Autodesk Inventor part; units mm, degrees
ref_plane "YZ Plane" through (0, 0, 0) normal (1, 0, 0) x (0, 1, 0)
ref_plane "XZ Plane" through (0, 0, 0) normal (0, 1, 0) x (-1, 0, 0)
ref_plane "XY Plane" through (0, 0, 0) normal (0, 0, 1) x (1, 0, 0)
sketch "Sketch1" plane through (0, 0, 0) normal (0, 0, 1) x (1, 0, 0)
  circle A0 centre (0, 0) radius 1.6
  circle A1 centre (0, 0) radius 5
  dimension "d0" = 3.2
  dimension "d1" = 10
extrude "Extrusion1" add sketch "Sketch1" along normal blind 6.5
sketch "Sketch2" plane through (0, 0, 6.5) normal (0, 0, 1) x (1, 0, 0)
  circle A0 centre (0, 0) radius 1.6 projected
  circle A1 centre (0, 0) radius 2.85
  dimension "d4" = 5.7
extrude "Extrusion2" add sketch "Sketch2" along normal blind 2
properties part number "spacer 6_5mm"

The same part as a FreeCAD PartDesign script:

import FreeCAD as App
import Part
import Sketcher

doc = App.newDocument("Part")
body = doc.addObject("PartDesign::Body", "Body")

# Sketch on XY plane
sketch1 = body.newObject("Sketcher::SketchObject", "Sketch")
sketch1.AttachmentSupport = (doc.getObject("XY_Plane"), [""])
sketch1.MapMode = "FlatFace"
sketch1.addGeometry([
    Part.Circle(App.Vector(0, 0, 0), App.Vector(0, 0, 1), 5),
    Part.Circle(App.Vector(0, 0, 0), App.Vector(0, 0, 1), 1.6),
], False)
sketch1.addConstraint([
    Sketcher.Constraint("Coincident", 0, 3, -1, 1),
    Sketcher.Constraint("Coincident", 1, 3, -1, 1),
    Sketcher.Constraint("Diameter", 0, 10.0),
    Sketcher.Constraint("Diameter", 1, 3.2),
])
pad1 = body.newObject("PartDesign::Pad", "Pad")
pad1.Profile = sketch1
pad1.Length = 6.5

# Sketch on XY plane
sketch2 = body.newObject("Sketcher::SketchObject", "Sketch001")
sketch2.AttachmentSupport = (doc.getObject("XY_Plane"), [""])
sketch2.MapMode = "FlatFace"
sketch2.AttachmentOffset = App.Placement(App.Vector(0, 0, 6.5), App.Rotation())
sketch2.addGeometry([
    Part.Circle(App.Vector(0, 0, 0), App.Vector(0, 0, 1), 2.9),
    Part.Circle(App.Vector(0, 0, 0), App.Vector(0, 0, 1), 1.6),
], False)
sketch2.addConstraint([
    Sketcher.Constraint("Coincident", 0, 3, -1, 1),
    Sketcher.Constraint("Coincident", 1, 3, -1, 1),
    Sketcher.Constraint("Diameter", 0, 5.7),
    Sketcher.Constraint("Diameter", 1, 3.2),
])
pad2 = body.newObject("PartDesign::Pad", "Pad001")
pad2.Profile = sketch2
pad2.Length = 2

doc.recompute()
